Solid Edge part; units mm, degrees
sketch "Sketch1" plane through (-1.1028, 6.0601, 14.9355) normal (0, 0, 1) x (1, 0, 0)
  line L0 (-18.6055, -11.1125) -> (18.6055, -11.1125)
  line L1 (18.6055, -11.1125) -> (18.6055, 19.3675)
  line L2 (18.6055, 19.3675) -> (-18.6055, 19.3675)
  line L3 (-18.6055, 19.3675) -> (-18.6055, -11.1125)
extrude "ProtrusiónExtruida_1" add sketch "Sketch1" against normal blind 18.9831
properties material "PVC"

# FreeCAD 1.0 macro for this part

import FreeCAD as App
import Part
import Sketcher

V = App.Vector
Q = App.Units.Quantity


def add_polygon(sketch, points):
    """Adds a closed chain of lines whose ends are joined by coincident constraints."""
    first, n = sketch.GeometryCount, len(points)
    for a, b in zip(points, points[1:] + points[:1]):
        sketch.addGeometry(Part.LineSegment(App.Vector(*a, 0), App.Vector(*b, 0)), False)
    for i in range(n):
        sketch.addConstraint(Sketcher.Constraint("Coincident", first + i, 2, first + (i + 1) % n, 1))

doc = App.newDocument("Part")
params = doc.addObject("Spreadsheet::Sheet", "Params")
for row, (alias, value) in enumerate([
    ("sketch1_height", "1.2 in"),
    ("sketch1_width", "1.465 in"),
    ("pad1_length", "18.9831 mm"),
], start=1):
    params.set(f"A{row}", alias)
    params.set(f"B{row}", "=" + value)
    params.setAlias(f"B{row}", alias)

body = doc.addObject("PartDesign::Body", "Body")

sketch1 = doc.addObject("Sketcher::SketchObject", "Sketch")
body.addObject(sketch1)
sketch1.AttachmentSupport = (doc.XY_Plane, [""])
sketch1.MapMode = "FlatFace"
sketch1.AttachmentOffset = App.Placement(V(0, 0, 0.5880118 * 25.4), App.Rotation())
add_polygon(sketch1, [(-20, 25), (-20, -5), (18, -5), (18, 25)])
sketch1.addConstraint(Sketcher.Constraint("Vertical", 0))
sketch1.addConstraint(Sketcher.Constraint("Horizontal", 1))
sketch1.addConstraint(Sketcher.Constraint("Vertical", 2))
sketch1.addConstraint(Sketcher.Constraint("Horizontal", 3))
sketch1.addConstraint(Sketcher.Constraint("DistanceY", 0, 2, 0, 1, Q("1.2 in")))
sketch1.addConstraint(Sketcher.Constraint("DistanceX", 1, 1, 1, 2, Q("1.465 in")))
sketch1.addConstraint(Sketcher.Constraint("DistanceX", 0, 2, -1, 1, Q("19.7083 mm")))
sketch1.addConstraint(Sketcher.Constraint("DistanceY", 0, 2, -1, 1, Q("5.0524 mm")))
sketch1.setExpression("Constraints[8]", "Params.sketch1_height")
sketch1.setExpression("Constraints[9]", "Params.sketch1_width")
pad1 = doc.addObject("PartDesign::Pad", "Pad")
body.addObject(pad1)
pad1.Profile = sketch1
pad1.setExpression("Length", "Params.pad1_length")
pad1.Reversed = True

doc.recompute()
